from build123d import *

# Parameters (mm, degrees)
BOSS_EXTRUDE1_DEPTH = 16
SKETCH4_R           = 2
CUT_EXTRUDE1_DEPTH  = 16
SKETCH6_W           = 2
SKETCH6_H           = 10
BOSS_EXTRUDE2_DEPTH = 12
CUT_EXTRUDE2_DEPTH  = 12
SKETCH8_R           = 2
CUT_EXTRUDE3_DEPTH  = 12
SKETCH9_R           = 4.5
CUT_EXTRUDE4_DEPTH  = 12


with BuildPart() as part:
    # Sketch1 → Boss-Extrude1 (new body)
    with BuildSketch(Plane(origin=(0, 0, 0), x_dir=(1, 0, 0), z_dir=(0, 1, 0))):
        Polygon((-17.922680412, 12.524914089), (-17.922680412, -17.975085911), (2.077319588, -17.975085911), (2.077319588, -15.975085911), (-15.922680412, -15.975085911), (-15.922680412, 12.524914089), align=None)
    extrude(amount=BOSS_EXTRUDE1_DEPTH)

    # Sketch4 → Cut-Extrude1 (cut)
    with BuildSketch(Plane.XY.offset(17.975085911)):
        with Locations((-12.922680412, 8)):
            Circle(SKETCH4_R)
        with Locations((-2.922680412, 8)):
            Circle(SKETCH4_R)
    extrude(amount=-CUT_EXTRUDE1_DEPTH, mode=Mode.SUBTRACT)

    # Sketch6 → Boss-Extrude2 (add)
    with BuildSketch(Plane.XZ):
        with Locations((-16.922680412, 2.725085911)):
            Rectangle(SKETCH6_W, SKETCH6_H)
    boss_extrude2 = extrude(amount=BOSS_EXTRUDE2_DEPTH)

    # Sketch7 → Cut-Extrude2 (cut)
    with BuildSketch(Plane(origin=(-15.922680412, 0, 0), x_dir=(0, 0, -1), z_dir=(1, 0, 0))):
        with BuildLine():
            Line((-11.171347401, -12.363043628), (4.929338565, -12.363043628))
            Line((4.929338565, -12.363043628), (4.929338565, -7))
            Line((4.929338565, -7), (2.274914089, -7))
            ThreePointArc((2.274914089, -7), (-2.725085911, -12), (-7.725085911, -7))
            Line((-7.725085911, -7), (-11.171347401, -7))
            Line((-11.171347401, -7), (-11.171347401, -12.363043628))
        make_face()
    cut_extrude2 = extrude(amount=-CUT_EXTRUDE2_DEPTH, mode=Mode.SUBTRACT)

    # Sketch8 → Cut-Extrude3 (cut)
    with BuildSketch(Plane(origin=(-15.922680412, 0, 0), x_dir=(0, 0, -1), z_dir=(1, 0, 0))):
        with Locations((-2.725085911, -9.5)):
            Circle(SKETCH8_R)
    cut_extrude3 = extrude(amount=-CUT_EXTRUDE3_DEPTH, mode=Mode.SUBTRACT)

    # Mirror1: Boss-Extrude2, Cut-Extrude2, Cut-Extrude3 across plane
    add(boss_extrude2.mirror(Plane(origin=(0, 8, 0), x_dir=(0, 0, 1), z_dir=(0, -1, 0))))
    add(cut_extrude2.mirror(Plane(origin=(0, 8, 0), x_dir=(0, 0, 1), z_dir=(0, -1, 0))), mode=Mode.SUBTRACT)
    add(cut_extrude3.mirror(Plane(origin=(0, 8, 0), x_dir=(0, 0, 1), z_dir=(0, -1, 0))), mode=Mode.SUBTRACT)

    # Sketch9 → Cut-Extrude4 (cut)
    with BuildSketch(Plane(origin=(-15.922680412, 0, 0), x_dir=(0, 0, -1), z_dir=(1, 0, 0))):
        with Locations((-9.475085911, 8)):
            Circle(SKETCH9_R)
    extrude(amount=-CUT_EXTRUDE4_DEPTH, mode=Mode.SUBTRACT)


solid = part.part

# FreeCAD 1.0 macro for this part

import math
import FreeCAD as App
import Part
import Sketcher

V = App.Vector
Q = App.Units.Quantity


def add_polygon(sketch, points):
    """Adds a closed chain of lines whose ends are joined by coincident constraints."""
    first, n = sketch.GeometryCount, len(points)
    for a, b in zip(points, points[1:] + points[:1]):
        sketch.addGeometry(Part.LineSegment(App.Vector(*a, 0), App.Vector(*b, 0)), False)
    for i in range(n):
        sketch.addConstraint(Sketcher.Constraint("Coincident", first + i, 2, first + (i + 1) % n, 1))

doc = App.newDocument("Part")
body = doc.addObject("PartDesign::Body", "Body")

sketch1 = body.newObject("Sketcher::SketchObject", "Sketch")
sketch1.AttachmentSupport = (doc.getObject("XZ_Plane"), [""])
sketch1.MapMode = "FlatFace"
add_polygon(sketch1, [(-17.9, -12.5), (-17.9, 18), (2.1, 18), (2.1, 16), (-15.9, 16), (-15.9, -12.5)])
sketch1.addConstraint([
    Sketcher.Constraint("Vertical", 0),
    Sketcher.Constraint("Horizontal", 1),
    Sketcher.Constraint("Vertical", 2),
    Sketcher.Constraint("Horizontal", 3),
    Sketcher.Constraint("Vertical", 4),
    Sketcher.Constraint("Horizontal", 5),
    Sketcher.Constraint("Equal", 5, 2),
    Sketcher.Constraint("DistanceX", 1, 1, 1, 2, Q("20 mm")),
    Sketcher.Constraint("DistanceX", 3, 2, 3, 1, Q("18 mm")),
    Sketcher.Constraint("DistanceY", 0, 1, 0, 2, Q("30.5 mm")),
    Sketcher.Constraint("DistanceX", 0, 2, -1, 1, Q("17.92268 mm")),
    Sketcher.Constraint("DistanceY", -1, 1, 0, 2, Q("17.975086 mm")),
])
pad1 = body.newObject("PartDesign::Pad", "Pad")
pad1.Profile = sketch1
pad1.Length = 16
pad1.Reversed = True

sketch2 = body.newObject("Sketcher::SketchObject", "Sketch001")
sketch2.AttachmentSupport = (doc.getObject("XY_Plane"), [""])
sketch2.MapMode = "FlatFace"
sketch2.AttachmentOffset = App.Placement(V(0, 0, 17.975086), App.Rotation())
sketch2.addGeometry([
    Part.Circle(V(-12.9, 8, 0), V(0, 0, 1), 2),
    Part.Circle(V(-2.9, 8, 0), V(0, 0, 1), 2),
], False)
sketch2.addConstraint([
    Sketcher.Constraint("Equal", 0, 1),
    Sketcher.Constraint("Horizontal", 0, 3, 1, 3),
    Sketcher.Constraint("Diameter", 0, Q("4 mm")),
    Sketcher.Constraint("DistanceY", -1, 1, 0, 3, Q("8 mm")),
    Sketcher.Constraint("DistanceX", 0, 3, 1, 3, Q("10 mm")),
    Sketcher.Constraint("DistanceX", 0, 3, -1, 1, Q("12.92268 mm")),
])
pocket1 = body.newObject("PartDesign::Pocket", "Pocket")
pocket1.Profile = sketch2
pocket1.Length = 16

sketch3 = body.newObject("Sketcher::SketchObject", "Sketch002")
sketch3.AttachmentSupport = (doc.getObject("XZ_Plane"), [""])
sketch3.MapMode = "FlatFace"
add_polygon(sketch3, [(-17.9, 7.7), (-17.9, -2.3), (-15.9, -2.3), (-15.9, 7.7)])
sketch3.addConstraint([
    Sketcher.Constraint("Vertical", 0),
    Sketcher.Constraint("Horizontal", 1),
    Sketcher.Constraint("Vertical", 2),
    Sketcher.Constraint("Horizontal", 3),
    Sketcher.Constraint("DistanceX", 1, 1, 1, 2, Q("2 mm")),
    Sketcher.Constraint("DistanceY", 0, 2, 0, 1, Q("10 mm")),
    Sketcher.Constraint("DistanceX", 0, 2, -1, 1, Q("17.92268 mm")),
    Sketcher.Constraint("DistanceY", 0, 2, -1, 1, Q("2.274914 mm")),
])
pad2 = body.newObject("PartDesign::Pad", "Pad001")
pad2.Profile = sketch3
pad2.Length = 12

sketch4 = body.newObject("Sketcher::SketchObject", "Sketch003")
sketch4.AttachmentSupport = (doc.getObject("YZ_Plane"), [""])
sketch4.MapMode = "FlatFace"
sketch4.AttachmentOffset = App.Placement(V(0, 0, -15.92268), App.Rotation())
sketch4.addGeometry([
    Part.LineSegment(V(-12.4, 11.2, 0), V(-12.4, -4.9, 0)),
    Part.LineSegment(V(-12.4, -4.9, 0), V(-7, -4.9, 0)),
    Part.LineSegment(V(-7, -4.9, 0), V(-7, -2.3, 0)),
    Part.ArcOfCircle(Part.Circle(V(-7, 2.7, 0), V(0, 0, 1), 5), math.radians(90), math.radians(270)),
    Part.LineSegment(V(-7, 7.7, 0), V(-7, 11.2, 0)),
    Part.LineSegment(V(-7, 11.2, 0), V(-12.4, 11.2, 0)),
], False)
sketch4.addConstraint([
    Sketcher.Constraint("Coincident", 0, 2, 1, 1),
    Sketcher.Constraint("Coincident", 1, 2, 2, 1),
    Sketcher.Constraint("Coincident", 2, 2, 3, 2),
    Sketcher.Constraint("Coincident", 3, 1, 4, 1),
    Sketcher.Constraint("Coincident", 4, 2, 5, 1),
    Sketcher.Constraint("Coincident", 5, 2, 0, 1),
    Sketcher.Constraint("Vertical", 0),
    Sketcher.Constraint("Horizontal", 1),
    Sketcher.Constraint("Vertical", 2),
    Sketcher.Constraint("Vertical", 4),
    Sketcher.Constraint("Horizontal", 5),
    Sketcher.Constraint("Vertical", 3, 3, 1, 2),
    Sketcher.Constraint("Vertical", 2, 2, 3, 1),
    Sketcher.Constraint("Radius", 3, Q("5 mm")),
    Sketcher.Constraint("DistanceX", 3, 3, -1, 1, Q("7 mm")),
    Sketcher.Constraint("DistanceY", 4, 1, 4, 2, Q("3.446261 mm")),
    Sketcher.Constraint("DistanceX", 1, 1, 1, 2, Q("5.363044 mm")),
    Sketcher.Constraint("DistanceY", 0, 2, 0, 1, Q("16.100686 mm")),
    Sketcher.Constraint("DistanceY", 0, 2, -1, 1, Q("4.929339 mm")),
])
pocket2 = body.newObject("PartDesign::Pocket", "Pocket001")
pocket2.Profile = sketch4
pocket2.Length = 12

sketch5 = body.newObject("Sketcher::SketchObject", "Sketch004")
sketch5.AttachmentSupport = (doc.getObject("YZ_Plane"), [""])
sketch5.MapMode = "FlatFace"
sketch5.AttachmentOffset = App.Placement(V(0, 0, -15.92268), App.Rotation())
sketch5.addGeometry(Part.Circle(V(-9.5, 2.7, 0), V(0, 0, 1), 2), False)
sketch5.addConstraint([
    Sketcher.Constraint("Diameter", 0, Q("4 mm")),
    Sketcher.Constraint("DistanceX", 0, 3, -1, 1, Q("9.5 mm")),
    Sketcher.Constraint("DistanceY", -1, 1, 0, 3, Q("2.725086 mm")),
])
pocket3 = body.newObject("PartDesign::Pocket", "Pocket002")
pocket3.Profile = sketch5
pocket3.Length = 12
doc.recompute()

datumplane = body.newObject("PartDesign::Plane", "DatumPlane")
datumplane.AttachmentSupport = (doc.getObject("XZ_Plane"), [""])
datumplane.MapMode = "FlatFace"
datumplane.AttachmentOffset = App.Placement(V(0, 0, -8), App.Rotation())
mirrored = body.newObject("PartDesign::Mirrored", "Mirrored")
mirrored.Originals = [pad2, pocket2, pocket3]
mirrored.MirrorPlane = (datumplane, [""])
body.Tip = mirrored

sketch6 = body.newObject("Sketcher::SketchObject", "Sketch005")
sketch6.AttachmentSupport = (doc.getObject("YZ_Plane"), [""])
sketch6.MapMode = "FlatFace"
sketch6.AttachmentOffset = App.Placement(V(0, 0, -15.92268), App.Rotation())
sketch6.addGeometry(Part.Circle(V(8, 9.5, 0), V(0, 0, 1), 4.5), False)
sketch6.addConstraint([
    Sketcher.Constraint("Diameter", 0, Q("9 mm")),
    Sketcher.Constraint("DistanceX", -1, 1, 0, 3, Q("8 mm")),
    Sketcher.Constraint("DistanceY", -1, 1, 0, 3, Q("9.475086 mm")),
])
pocket4 = body.newObject("PartDesign::Pocket", "Pocket003")
pocket4.Profile = sketch6
pocket4.Length = 12

doc.recompute()
